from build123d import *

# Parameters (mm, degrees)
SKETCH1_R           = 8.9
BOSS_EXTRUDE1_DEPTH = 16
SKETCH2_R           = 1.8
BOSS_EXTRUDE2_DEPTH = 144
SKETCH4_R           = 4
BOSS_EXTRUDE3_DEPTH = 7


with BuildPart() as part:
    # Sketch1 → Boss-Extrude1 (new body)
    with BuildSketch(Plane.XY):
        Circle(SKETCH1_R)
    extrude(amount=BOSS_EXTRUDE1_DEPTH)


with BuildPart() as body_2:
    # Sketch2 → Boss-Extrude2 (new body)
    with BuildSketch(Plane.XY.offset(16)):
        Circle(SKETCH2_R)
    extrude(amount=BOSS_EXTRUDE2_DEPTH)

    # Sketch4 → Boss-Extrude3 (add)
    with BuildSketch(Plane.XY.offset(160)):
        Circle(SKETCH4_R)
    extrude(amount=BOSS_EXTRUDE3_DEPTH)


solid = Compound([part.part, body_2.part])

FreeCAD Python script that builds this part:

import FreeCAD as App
import Part
import Sketcher

doc = App.newDocument("Part")
body = doc.addObject("PartDesign::Body", "Body")

# Sketch on XY plane
sketch1 = body.newObject("Sketcher::SketchObject", "Sketch")
sketch1.AttachmentSupport = (doc.getObject("XY_Plane"), [""])
sketch1.MapMode = "FlatFace"
sketch1.addGeometry(Part.Circle(App.Vector(0, 0, 0), App.Vector(0, 0, 1), 9), False)
sketch1.addConstraint(Sketcher.Constraint("Coincident", 0, 3, -1, 1))
sketch1.addConstraint(Sketcher.Constraint("Diameter", 0, 17.8))
pad1 = body.newObject("PartDesign::Pad", "Pad")
pad1.Profile = sketch1
pad1.Length = 16
body2 = doc.addObject("PartDesign::Body", "Body001")

# Sketch on XY plane
sketch2 = body2.newObject("Sketcher::SketchObject", "Sketch001")
sketch2.AttachmentSupport = (doc.getObject("XY_Plane001"), [""])
sketch2.MapMode = "FlatFace"
sketch2.AttachmentOffset = App.Placement(App.Vector(0, 0, 16), App.Rotation())
sketch2.addGeometry(Part.Circle(App.Vector(0, 0, 0), App.Vector(0, 0, 1), 1.8), False)
sketch2.addConstraint(Sketcher.Constraint("Coincident", 0, 3, -1, 1))
sketch2.addConstraint(Sketcher.Constraint("Diameter", 0, 3.6))
pad2 = body2.newObject("PartDesign::Pad", "Pad001")
pad2.Profile = sketch2
pad2.Length = 144

# Sketch on XY plane
sketch3 = body2.newObject("Sketcher::SketchObject", "Sketch002")
sketch3.AttachmentSupport = (doc.getObject("XY_Plane001"), [""])
sketch3.MapMode = "FlatFace"
sketch3.AttachmentOffset = App.Placement(App.Vector(0, 0, 160), App.Rotation())
sketch3.addGeometry(Part.Circle(App.Vector(0, 0, 0), App.Vector(0, 0, 1), 4), False)
sketch3.addConstraint(Sketcher.Constraint("Coincident", 0, 3, -1, 1))
sketch3.addConstraint(Sketcher.Constraint("Diameter", 0, 8.0))
pad3 = body2.newObject("PartDesign::Pad", "Pad002")
pad3.Profile = sketch3
pad3.Length = 7

doc.recompute()
